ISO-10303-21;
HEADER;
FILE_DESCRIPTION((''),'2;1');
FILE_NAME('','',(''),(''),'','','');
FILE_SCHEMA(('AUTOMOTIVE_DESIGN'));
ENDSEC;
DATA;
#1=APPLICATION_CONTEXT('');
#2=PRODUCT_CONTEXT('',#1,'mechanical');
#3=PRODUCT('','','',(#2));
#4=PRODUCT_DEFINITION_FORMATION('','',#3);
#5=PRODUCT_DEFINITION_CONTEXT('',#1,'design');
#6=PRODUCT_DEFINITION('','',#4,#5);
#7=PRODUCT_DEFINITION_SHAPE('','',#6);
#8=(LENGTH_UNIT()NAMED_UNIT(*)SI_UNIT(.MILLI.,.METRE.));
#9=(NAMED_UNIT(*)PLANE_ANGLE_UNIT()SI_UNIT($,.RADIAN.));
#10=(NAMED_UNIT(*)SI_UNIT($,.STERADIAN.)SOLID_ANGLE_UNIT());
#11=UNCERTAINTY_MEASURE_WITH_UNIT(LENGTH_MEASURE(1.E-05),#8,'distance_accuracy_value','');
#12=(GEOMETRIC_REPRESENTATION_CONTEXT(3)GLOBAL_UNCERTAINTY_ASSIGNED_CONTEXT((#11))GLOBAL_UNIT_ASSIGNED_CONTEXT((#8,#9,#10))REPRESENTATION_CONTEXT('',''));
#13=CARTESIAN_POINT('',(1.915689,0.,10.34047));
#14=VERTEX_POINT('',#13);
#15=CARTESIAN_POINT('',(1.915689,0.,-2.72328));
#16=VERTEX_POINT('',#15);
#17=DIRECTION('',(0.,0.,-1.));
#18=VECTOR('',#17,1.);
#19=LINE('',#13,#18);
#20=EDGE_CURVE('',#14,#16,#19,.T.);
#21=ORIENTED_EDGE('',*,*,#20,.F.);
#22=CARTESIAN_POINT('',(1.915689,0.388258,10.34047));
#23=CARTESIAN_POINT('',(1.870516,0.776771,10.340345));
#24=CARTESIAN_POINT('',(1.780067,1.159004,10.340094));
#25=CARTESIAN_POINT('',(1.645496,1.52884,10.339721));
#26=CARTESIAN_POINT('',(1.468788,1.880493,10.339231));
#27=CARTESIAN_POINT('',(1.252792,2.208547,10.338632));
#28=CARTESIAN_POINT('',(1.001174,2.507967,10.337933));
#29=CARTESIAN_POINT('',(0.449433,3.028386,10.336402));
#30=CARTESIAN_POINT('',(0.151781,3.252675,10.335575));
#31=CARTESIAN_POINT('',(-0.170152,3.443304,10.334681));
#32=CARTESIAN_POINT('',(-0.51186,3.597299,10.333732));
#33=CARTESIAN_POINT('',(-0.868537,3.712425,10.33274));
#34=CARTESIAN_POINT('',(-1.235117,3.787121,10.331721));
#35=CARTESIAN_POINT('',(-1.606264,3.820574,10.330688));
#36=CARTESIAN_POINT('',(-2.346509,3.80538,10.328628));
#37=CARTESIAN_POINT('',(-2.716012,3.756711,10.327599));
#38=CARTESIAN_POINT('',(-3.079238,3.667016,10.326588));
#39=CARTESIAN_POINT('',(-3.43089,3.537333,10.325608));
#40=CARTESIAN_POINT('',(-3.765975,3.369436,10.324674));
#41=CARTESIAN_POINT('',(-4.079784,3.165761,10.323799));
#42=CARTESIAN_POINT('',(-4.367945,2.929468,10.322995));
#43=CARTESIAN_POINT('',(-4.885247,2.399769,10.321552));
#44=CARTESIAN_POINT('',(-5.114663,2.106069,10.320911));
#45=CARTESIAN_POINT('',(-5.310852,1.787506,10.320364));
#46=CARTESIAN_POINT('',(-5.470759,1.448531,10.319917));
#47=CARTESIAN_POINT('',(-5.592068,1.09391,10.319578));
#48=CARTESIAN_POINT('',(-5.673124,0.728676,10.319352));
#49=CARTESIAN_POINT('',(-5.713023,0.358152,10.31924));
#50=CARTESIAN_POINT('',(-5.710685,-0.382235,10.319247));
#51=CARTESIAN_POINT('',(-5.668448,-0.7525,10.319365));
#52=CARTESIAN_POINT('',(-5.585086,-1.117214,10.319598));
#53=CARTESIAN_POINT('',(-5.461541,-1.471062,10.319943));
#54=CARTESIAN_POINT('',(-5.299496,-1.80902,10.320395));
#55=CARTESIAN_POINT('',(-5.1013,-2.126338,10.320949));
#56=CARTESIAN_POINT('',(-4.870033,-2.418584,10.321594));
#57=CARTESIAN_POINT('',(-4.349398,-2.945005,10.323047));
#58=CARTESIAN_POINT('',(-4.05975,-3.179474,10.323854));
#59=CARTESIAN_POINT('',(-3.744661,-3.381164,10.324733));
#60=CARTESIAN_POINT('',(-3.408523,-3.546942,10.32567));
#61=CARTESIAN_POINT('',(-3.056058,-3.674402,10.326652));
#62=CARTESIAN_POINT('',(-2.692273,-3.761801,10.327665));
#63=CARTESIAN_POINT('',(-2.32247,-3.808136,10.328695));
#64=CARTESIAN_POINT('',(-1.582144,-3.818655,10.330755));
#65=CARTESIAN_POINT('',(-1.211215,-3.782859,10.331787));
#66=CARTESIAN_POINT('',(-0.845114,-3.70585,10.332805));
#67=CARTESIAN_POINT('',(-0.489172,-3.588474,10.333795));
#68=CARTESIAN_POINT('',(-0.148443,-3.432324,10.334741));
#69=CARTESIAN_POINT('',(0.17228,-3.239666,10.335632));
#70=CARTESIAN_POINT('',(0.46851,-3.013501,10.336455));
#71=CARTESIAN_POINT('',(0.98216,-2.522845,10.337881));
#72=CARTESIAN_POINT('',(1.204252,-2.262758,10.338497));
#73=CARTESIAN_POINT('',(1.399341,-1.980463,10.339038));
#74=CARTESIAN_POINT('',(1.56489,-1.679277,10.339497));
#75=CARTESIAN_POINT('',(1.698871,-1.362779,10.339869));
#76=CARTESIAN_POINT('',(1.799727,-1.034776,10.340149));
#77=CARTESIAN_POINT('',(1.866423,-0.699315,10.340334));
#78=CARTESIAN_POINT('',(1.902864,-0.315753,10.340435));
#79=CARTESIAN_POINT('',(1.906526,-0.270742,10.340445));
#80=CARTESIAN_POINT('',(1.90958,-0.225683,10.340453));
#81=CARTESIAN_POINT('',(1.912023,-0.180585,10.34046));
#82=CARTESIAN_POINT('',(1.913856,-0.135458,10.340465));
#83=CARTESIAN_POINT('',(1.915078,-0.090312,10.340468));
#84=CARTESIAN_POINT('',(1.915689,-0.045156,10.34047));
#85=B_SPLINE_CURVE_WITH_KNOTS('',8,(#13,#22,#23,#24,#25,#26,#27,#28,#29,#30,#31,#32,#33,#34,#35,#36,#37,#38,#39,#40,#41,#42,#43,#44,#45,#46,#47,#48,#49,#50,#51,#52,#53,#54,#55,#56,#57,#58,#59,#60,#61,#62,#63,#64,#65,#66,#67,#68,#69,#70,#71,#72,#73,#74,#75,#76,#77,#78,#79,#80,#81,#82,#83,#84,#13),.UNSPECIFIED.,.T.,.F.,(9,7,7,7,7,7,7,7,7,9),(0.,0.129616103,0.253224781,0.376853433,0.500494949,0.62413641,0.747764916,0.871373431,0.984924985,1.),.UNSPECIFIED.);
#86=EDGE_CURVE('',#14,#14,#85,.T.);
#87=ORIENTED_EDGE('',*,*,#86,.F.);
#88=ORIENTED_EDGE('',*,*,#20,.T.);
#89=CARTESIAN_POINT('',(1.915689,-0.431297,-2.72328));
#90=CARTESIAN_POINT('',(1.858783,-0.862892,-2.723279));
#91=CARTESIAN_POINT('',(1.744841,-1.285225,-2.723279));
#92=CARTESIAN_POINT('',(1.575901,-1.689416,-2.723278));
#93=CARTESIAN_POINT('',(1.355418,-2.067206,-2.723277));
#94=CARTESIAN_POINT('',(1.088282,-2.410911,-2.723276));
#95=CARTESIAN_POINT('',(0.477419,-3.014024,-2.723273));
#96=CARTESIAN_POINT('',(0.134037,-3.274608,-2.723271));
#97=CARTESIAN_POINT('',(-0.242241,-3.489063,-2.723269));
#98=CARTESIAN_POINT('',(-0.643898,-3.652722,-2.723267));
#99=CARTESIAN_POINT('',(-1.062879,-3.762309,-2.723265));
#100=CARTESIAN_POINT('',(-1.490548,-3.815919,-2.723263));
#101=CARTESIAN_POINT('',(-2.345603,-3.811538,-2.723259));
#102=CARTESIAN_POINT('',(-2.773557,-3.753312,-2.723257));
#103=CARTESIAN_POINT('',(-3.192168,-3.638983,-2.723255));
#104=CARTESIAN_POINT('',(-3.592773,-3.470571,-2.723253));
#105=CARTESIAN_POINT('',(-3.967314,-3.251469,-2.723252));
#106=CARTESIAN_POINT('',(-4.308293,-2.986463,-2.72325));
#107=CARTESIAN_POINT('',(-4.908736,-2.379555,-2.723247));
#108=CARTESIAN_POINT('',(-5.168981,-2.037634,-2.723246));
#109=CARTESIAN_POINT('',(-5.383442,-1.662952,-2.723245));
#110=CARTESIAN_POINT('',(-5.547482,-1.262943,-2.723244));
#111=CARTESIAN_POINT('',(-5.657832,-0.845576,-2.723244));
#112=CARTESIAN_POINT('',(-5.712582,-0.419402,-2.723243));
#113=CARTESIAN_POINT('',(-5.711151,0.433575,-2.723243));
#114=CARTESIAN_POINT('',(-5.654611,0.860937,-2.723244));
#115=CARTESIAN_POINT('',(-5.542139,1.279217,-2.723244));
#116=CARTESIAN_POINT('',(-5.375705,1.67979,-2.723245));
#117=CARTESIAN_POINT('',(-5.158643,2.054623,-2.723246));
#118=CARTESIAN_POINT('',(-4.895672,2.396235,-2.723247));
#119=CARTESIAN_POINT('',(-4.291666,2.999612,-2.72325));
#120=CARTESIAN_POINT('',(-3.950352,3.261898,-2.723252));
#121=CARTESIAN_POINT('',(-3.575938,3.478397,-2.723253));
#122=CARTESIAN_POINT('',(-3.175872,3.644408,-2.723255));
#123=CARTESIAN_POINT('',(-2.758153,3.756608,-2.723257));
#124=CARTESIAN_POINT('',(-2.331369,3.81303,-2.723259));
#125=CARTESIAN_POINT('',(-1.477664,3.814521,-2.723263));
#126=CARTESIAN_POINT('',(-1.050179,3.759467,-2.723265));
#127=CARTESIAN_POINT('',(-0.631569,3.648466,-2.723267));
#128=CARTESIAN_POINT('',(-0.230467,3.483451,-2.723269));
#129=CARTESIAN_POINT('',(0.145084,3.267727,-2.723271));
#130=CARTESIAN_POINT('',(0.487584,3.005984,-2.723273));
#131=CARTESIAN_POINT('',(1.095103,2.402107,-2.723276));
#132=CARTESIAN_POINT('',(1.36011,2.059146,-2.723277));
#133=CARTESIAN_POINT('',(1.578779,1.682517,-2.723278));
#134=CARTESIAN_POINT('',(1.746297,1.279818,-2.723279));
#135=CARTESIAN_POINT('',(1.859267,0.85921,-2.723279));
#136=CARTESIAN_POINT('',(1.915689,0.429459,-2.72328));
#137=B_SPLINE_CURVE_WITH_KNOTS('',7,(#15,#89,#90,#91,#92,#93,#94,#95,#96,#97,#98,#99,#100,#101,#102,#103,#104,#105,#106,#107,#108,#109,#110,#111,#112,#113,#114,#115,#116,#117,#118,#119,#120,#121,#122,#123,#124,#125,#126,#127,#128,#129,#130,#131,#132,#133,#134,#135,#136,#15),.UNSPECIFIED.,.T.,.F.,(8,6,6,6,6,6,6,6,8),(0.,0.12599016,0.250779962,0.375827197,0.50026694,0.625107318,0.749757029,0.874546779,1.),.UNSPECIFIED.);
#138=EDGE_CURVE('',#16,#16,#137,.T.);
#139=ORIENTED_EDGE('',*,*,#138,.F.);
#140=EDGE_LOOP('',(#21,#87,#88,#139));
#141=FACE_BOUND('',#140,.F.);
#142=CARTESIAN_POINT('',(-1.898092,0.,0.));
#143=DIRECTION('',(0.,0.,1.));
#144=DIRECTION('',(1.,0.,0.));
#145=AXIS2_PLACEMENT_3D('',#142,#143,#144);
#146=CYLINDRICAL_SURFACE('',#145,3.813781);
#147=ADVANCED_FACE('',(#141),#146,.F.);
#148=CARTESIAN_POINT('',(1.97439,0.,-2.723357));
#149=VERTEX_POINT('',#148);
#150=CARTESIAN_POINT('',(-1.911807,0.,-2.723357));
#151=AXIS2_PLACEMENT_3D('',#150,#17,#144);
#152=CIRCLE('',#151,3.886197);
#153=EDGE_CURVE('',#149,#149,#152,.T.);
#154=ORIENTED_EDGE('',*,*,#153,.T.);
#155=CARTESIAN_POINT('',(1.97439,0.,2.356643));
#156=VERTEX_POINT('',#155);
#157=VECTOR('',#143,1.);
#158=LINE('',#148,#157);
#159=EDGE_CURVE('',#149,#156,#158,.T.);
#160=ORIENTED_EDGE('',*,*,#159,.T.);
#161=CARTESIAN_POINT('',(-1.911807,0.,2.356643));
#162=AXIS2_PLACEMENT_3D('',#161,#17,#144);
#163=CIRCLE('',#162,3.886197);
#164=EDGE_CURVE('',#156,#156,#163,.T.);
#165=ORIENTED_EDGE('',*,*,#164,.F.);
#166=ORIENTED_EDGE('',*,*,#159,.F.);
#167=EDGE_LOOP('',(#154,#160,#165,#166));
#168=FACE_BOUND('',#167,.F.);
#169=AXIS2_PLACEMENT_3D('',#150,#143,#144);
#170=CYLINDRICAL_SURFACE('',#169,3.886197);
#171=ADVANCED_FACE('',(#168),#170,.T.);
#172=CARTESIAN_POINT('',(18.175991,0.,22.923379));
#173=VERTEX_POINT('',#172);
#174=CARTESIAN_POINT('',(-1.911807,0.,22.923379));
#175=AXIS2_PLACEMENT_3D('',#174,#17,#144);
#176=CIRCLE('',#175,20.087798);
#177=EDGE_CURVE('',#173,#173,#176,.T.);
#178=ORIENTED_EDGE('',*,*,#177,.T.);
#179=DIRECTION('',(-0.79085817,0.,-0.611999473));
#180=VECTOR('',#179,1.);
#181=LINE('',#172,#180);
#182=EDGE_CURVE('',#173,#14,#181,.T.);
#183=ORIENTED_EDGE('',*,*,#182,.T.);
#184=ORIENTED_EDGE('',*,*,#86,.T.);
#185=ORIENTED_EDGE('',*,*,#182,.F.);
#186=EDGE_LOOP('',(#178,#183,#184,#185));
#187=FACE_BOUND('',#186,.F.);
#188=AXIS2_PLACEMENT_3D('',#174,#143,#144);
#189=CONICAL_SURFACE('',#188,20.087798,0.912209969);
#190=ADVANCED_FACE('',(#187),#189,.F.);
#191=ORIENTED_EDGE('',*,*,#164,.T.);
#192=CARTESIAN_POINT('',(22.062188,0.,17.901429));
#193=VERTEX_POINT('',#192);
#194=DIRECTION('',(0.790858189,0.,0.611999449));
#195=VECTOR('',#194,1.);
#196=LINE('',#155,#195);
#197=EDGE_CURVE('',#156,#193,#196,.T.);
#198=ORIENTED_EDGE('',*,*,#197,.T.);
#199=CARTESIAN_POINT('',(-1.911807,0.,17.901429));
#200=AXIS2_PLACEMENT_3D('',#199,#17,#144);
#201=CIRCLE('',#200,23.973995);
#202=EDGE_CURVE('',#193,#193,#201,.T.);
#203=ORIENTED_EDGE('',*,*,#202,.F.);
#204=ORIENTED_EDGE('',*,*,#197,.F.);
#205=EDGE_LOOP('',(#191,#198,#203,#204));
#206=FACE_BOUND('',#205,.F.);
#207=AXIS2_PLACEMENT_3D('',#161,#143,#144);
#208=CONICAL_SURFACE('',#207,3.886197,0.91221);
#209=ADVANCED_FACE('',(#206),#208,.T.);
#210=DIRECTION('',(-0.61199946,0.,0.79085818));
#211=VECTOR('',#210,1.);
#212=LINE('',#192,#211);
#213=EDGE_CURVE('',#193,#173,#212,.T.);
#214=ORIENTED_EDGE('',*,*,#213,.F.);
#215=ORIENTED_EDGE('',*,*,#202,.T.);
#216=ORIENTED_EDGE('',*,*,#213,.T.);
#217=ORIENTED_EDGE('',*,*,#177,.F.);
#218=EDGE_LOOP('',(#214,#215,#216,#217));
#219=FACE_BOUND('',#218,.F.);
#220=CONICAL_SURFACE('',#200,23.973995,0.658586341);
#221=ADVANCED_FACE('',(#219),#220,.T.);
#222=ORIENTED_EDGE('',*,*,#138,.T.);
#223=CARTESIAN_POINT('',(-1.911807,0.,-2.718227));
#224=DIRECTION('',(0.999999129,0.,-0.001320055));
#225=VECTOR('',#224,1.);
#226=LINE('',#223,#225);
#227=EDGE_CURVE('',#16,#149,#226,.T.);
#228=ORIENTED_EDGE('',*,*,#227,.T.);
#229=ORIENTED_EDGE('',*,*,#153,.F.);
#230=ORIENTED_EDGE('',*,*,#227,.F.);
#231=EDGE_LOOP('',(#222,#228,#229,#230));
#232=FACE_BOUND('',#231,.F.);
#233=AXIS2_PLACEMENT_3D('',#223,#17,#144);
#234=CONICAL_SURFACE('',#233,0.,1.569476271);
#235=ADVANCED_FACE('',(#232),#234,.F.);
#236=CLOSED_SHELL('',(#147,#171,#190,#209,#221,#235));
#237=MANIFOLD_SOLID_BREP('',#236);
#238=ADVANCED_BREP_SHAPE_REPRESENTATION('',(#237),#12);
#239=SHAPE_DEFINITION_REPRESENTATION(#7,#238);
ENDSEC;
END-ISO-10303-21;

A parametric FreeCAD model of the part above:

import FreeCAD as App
import Part
import Sketcher
Q = App.Units.Quantity

doc = App.newDocument("Part")
params = doc.addObject("Spreadsheet::Sheet", "Params")
for row, (alias, value) in enumerate([
    ("sketch1_length", "1 in"),
    ("sketch1_height", "0.2 in"),
    ("sketch1_length2", "0.25 in"),
    ("sketch1_length3", "0.153 in"),
    ("revolution_angle", "360 deg"),
    ("pocket1_length", "1.5 in"),
    ("pocket2_length", "0.554 in"),
    ("pocket3_length", "0.6 in"),
], start=1):
    params.set(f"A{row}", alias)
    params.set(f"B{row}", "=" + value)
    params.setAlias(f"B{row}", alias)

body = doc.addObject("PartDesign::Body", "Body")

# Sketch on XZ plane
sketch1 = doc.addObject("Sketcher::SketchObject", "Sketch")
body.addObject(sketch1)
sketch1.AttachmentSupport = (doc.XZ_Plane, [""])
sketch1.MapMode = "FlatFace"
sketch1.addGeometry([
    Part.LineSegment(App.Vector(-1.9, -2.7, 0), App.Vector(2, -2.7, 0)),  # 0
    Part.LineSegment(App.Vector(2, -2.7, 0), App.Vector(2, 2.4, 0)),  # 1
    Part.LineSegment(App.Vector(2, 2.4, 0), App.Vector(22.1, 17.9, 0)),  # 2
    Part.LineSegment(App.Vector(22.1, 17.9, 0), App.Vector(18.2, 22.9, 0)),  # 3
    Part.LineSegment(App.Vector(18.2, 22.9, 0), App.Vector(-1.9, 7.4, 0)),  # 4
    Part.LineSegment(App.Vector(-1.9, 7.4, 0), App.Vector(-1.9, -2.7, 0)),  # 5
], False)
sketch1.addGeometry(Part.LineSegment(App.Vector(-1.9, 22.9, 0), App.Vector(-1.9, -2.7, 0)), True)  # axis
sketch1.addConstraint([
    Sketcher.Constraint("Coincident", 0, 2, 1, 1),
    Sketcher.Constraint("Coincident", 1, 2, 2, 1),
    Sketcher.Constraint("Coincident", 2, 2, 3, 1),
    Sketcher.Constraint("Coincident", 3, 2, 4, 1),
    Sketcher.Constraint("Coincident", 4, 2, 5, 1),
    Sketcher.Constraint("Coincident", 5, 2, 0, 1),
    Sketcher.Constraint("Vertical", 1),
    Sketcher.Constraint("Vertical", 5),
    Sketcher.Constraint("Vertical", 6),
    Sketcher.Constraint("Perpendicular", 2, 3),
    Sketcher.Constraint("Perpendicular", 3, 4),
    Sketcher.Constraint("Horizontal", 3, 2, 6, 1),
    Sketcher.Constraint("Horizontal", 0, 2, 6, 2),
    Sketcher.Constraint("Vertical", 5, 2, 6, 1),
    Sketcher.Constraint("Equal", 2, 4),
    Sketcher.Constraint("Distance", 2, Q("1 in")),
    Sketcher.Constraint("DistanceY", 1, 1, 1, 2, Q("0.2 in")),
    Sketcher.Constraint("Distance", 3, Q("0.25 in")),
    Sketcher.Constraint("Distance", 0, Q("0.153 in")),
    Sketcher.Constraint("DistanceY", 5, 2, 5, 1, Q("10.096819 mm")),
    Sketcher.Constraint("DistanceX", -1, 1, 0, 2, Q("1.97439 mm")),
    Sketcher.Constraint("DistanceY", -1, 1, 2, 2, Q("17.901429 mm")),
])
sketch1.setExpression("Constraints[15]", "Params.sketch1_length")
sketch1.setExpression("Constraints[16]", "Params.sketch1_height")
sketch1.setExpression("Constraints[17]", "Params.sketch1_length2")
sketch1.setExpression("Constraints[18]", "Params.sketch1_length3")
revolution = doc.addObject("PartDesign::Revolution", "Revolution")
body.addObject(revolution)
revolution.Profile = sketch1
revolution.ReferenceAxis = (sketch1, ["Axis0"])
revolution.setExpression("Angle", "Params.revolution_angle")

# Sketch on XY plane
sketch2 = doc.addObject("Sketcher::SketchObject", "Sketch001")
body.addObject(sketch2)
sketch2.AttachmentSupport = (doc.XY_Plane, [""])
sketch2.MapMode = "FlatFace"
sketch2.addGeometry(Part.Circle(App.Vector(-1.9, 0, 0), App.Vector(0, 0, 1), 3.8), False)
sketch2.addConstraint([
    Sketcher.Constraint("PointOnObject", 0, 3, -1),
    Sketcher.Constraint("Diameter", 0, Q("7.627562 mm")),
    Sketcher.Constraint("DistanceX", 0, 3, -1, 1, Q("1.898092 mm")),
])
pocket1 = doc.addObject("PartDesign::Pocket", "Pocket")
body.addObject(pocket1)
pocket1.Profile = sketch2
pocket1.setExpression("Length", "Params.pocket1_length")
pocket1.Reversed = True

# Sketch on XY plane
sketch3 = doc.addObject("Sketcher::SketchObject", "Sketch002")
body.addObject(sketch3)
sketch3.AttachmentSupport = (doc.XY_Plane, [""])
sketch3.MapMode = "FlatFace"
sketch3.addGeometry(Part.Circle(App.Vector(-1.9, 0, 0), App.Vector(0, 0, 1), 3), False)
sketch3.addConstraint([
    Sketcher.Constraint("PointOnObject", 0, 3, -1),
    Sketcher.Constraint("Diameter", 0, Q("6.041058 mm")),
    Sketcher.Constraint("DistanceX", 0, 3, -1, 1, Q("1.891657 mm")),
])
pocket2 = doc.addObject("PartDesign::Pocket", "Pocket001")
body.addObject(pocket2)
pocket2.Profile = sketch3
pocket2.setExpression("Length", "Params.pocket2_length")
pocket2.Reversed = True

# Sketch on XY plane
sketch4 = doc.addObject("Sketcher::SketchObject", "Sketch003")
body.addObject(sketch4)
sketch4.AttachmentSupport = (doc.XY_Plane, [""])
sketch4.MapMode = "FlatFace"
sketch4.addGeometry(Part.Circle(App.Vector(-1.9, 0, 0), App.Vector(0, 0, 1), 3.8), False)
sketch4.addConstraint([
    Sketcher.Constraint("PointOnObject", 0, 3, -1),
    Sketcher.Constraint("Diameter", 0, Q("7.627562 mm")),
    Sketcher.Constraint("DistanceX", 0, 3, -1, 1, Q("1.898092 mm")),
])
pocket3 = doc.addObject("PartDesign::Pocket", "Pocket002")
body.addObject(pocket3)
pocket3.Profile = sketch4
pocket3.setExpression("Length", "Params.pocket3_length")

doc.recompute()
